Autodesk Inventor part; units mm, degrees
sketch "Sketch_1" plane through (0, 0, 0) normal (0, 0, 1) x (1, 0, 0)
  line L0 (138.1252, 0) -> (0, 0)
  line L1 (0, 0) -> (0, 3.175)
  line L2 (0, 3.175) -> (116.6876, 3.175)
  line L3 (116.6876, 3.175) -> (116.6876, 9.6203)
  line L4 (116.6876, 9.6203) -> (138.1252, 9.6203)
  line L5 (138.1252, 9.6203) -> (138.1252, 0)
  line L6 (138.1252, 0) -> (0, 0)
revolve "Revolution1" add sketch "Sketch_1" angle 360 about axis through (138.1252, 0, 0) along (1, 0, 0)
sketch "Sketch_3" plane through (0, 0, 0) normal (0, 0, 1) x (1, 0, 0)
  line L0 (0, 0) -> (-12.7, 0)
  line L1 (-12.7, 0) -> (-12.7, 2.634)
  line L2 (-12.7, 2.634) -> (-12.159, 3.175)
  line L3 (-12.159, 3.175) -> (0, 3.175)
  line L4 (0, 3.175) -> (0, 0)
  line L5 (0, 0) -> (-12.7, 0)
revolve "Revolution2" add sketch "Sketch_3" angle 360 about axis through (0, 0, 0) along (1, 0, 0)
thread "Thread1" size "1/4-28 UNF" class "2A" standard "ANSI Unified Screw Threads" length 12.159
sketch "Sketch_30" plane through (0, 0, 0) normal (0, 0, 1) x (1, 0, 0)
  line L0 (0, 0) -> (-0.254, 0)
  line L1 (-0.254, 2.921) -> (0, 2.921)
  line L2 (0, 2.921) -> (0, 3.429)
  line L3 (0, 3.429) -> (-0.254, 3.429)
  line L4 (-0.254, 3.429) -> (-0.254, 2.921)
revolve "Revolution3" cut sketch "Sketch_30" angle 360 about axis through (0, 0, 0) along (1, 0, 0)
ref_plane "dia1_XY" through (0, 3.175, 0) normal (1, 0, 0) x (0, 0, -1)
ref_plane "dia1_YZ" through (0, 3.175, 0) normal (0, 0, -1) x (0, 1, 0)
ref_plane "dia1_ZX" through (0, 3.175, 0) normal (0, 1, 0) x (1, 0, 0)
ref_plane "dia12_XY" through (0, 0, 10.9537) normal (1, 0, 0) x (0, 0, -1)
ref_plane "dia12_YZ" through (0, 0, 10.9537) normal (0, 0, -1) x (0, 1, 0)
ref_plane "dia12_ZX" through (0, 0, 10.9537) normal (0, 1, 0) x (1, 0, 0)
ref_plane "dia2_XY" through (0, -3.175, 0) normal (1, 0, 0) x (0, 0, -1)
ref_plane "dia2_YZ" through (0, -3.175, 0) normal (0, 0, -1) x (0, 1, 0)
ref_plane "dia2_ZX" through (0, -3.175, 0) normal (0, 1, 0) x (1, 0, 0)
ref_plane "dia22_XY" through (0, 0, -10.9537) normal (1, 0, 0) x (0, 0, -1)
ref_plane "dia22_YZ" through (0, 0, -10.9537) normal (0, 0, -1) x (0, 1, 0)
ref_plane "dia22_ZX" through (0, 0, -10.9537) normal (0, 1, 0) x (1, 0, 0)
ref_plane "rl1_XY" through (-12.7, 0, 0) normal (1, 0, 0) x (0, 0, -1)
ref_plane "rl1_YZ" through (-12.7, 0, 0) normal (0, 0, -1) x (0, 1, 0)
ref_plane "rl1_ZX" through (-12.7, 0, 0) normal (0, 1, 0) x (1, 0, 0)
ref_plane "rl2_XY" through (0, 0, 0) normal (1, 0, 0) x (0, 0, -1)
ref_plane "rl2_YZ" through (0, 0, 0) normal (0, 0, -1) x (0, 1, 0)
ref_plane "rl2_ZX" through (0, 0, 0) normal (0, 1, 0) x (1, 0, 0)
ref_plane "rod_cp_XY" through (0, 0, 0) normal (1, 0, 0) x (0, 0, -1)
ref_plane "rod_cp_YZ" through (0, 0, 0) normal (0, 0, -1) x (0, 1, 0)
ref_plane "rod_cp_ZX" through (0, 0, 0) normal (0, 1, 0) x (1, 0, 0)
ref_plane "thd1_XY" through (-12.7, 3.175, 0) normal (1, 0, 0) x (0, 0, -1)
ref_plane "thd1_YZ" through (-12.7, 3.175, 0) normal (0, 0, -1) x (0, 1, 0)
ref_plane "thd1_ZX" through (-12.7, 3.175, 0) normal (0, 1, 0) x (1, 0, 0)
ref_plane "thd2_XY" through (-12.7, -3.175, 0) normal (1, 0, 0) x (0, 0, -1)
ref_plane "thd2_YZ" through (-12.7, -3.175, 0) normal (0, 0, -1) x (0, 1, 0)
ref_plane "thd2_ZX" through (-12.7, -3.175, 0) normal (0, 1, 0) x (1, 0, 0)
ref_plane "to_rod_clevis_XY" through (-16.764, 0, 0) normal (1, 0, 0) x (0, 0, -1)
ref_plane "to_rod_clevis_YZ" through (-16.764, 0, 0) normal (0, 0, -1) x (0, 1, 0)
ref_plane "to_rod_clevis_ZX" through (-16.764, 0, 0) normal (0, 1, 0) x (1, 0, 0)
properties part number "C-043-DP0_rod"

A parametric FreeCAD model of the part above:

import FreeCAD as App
import Part
import Sketcher
from FreeCAD import Vector
Q = App.Units.Quantity


def add_polygon(sketch, points):
    """Adds a closed chain of lines whose ends are joined by coincident constraints."""
    first, n = sketch.GeometryCount, len(points)
    for a, b in zip(points, points[1:] + points[:1]):
        sketch.addGeometry(Part.LineSegment(App.Vector(*a, 0), App.Vector(*b, 0)), False)
    for i in range(n):
        sketch.addConstraint(Sketcher.Constraint("Coincident", first + i, 2, first + (i + 1) % n, 1))

doc = App.newDocument("Part")
params = doc.addObject("Spreadsheet::Sheet", "Params")
for row, (alias, value) in enumerate([
    ("sketch1_width", "5.438 in"),
    ("sketch1_width2", "0.844 in"),
    ("sketch1_height", "0.125 in"),
    ("revolution_angle", "360 deg"),
    ("sketch2_width", "0.5 in"),
    ("sketch2_height", "0.125 in"),
    ("revolution2_angle", "360 deg"),
    ("sketch3_width", "0.01 in"),
    ("sketch3_height", "0.02 in"),
    ("groove_angle", "360 deg"),
], start=1):
    params.set(f"A{row}", alias)
    params.set(f"B{row}", "=" + value)
    params.setAlias(f"B{row}", alias)

body = doc.addObject("PartDesign::Body", "Body")

sketch1 = body.newObject("Sketcher::SketchObject", "Sketch")
sketch1.AttachmentSupport = (doc.getObject("XY_Plane"), [""])
sketch1.MapMode = "FlatFace"
add_polygon(sketch1, [(0, 0), (138.1252, 0), (138.1252, 9.6203), (116.6876, 9.6203), (116.6876, 3.175), (0, 3.175)])
sketch1.addConstraint([
    Sketcher.Constraint("Horizontal", 0),
    Sketcher.Constraint("Vertical", 1),
    Sketcher.Constraint("Horizontal", 2),
    Sketcher.Constraint("Vertical", 3),
    Sketcher.Constraint("Horizontal", 4),
    Sketcher.Constraint("Vertical", 5),
    Sketcher.Constraint("Coincident", 5, 2, -1, 1),
    Sketcher.Constraint("DistanceX", 0, 1, 0, 2, Q("5.438 in")),
    Sketcher.Constraint("DistanceX", 2, 2, 2, 1, Q("0.844 in")),
    Sketcher.Constraint("DistanceY", 5, 2, 5, 1, Q("0.125 in")),
    Sketcher.Constraint("DistanceY", 1, 1, 1, 2, Q("9.6203 mm")),
])
sketch1.setExpression("Constraints[13]", "Params.sketch1_width")
sketch1.setExpression("Constraints[14]", "Params.sketch1_width2")
sketch1.setExpression("Constraints[15]", "Params.sketch1_height")
revolution = body.newObject("PartDesign::Revolution", "Revolution")
revolution.Profile = sketch1
revolution.ReferenceAxis = (sketch1, ["H_Axis"])
revolution.setExpression("Angle", "Params.revolution_angle")

sketch2 = body.newObject("Sketcher::SketchObject", "Sketch001")
sketch2.AttachmentSupport = (doc.getObject("XY_Plane"), [""])
sketch2.MapMode = "FlatFace"
add_polygon(sketch2, [(-12.7, 0), (0, 0), (0, 3.175), (-12.159, 3.175), (-12.7, 2.634)])
sketch2.addConstraint([
    Sketcher.Constraint("Horizontal", 0),
    Sketcher.Constraint("Vertical", 1),
    Sketcher.Constraint("Horizontal", 2),
    Sketcher.Constraint("Vertical", 4),
    Sketcher.Constraint("Coincident", 0, 2, -1, 1),
    Sketcher.Constraint("DistanceX", 0, 1, 0, 2, Q("0.5 in")),
    Sketcher.Constraint("Angle", 3, Q("-135 deg")),
    Sketcher.Constraint("DistanceY", 1, 1, 1, 2, Q("0.125 in")),
    Sketcher.Constraint("DistanceX", 2, 2, 2, 1, Q("0.4787 in")),
])
sketch2.setExpression("Constraints[10]", "Params.sketch2_width")
sketch2.setExpression("Constraints[12]", "Params.sketch2_height")
revolution2 = body.newObject("PartDesign::Revolution", "Revolution001")
revolution2.Profile = sketch2
revolution2.ReferenceAxis = (sketch2, ["H_Axis"])
revolution2.setExpression("Angle", "Params.revolution2_angle")

sketch3 = body.newObject("Sketcher::SketchObject", "Sketch002")
sketch3.AttachmentSupport = (doc.getObject("XY_Plane"), [""])
sketch3.MapMode = "FlatFace"
add_polygon(sketch3, [(-0.254, 3.429), (-0.254, 2.921), (0, 2.921), (0, 3.429)])
sketch3.addConstraint([
    Sketcher.Constraint("Vertical", 0),
    Sketcher.Constraint("Horizontal", 1),
    Sketcher.Constraint("Vertical", 2),
    Sketcher.Constraint("Horizontal", 3),
    Sketcher.Constraint("PointOnObject", 1, 2, -2),
    Sketcher.Constraint("DistanceX", 1, 1, 1, 2, Q("0.01 in")),
    Sketcher.Constraint("DistanceY", 0, 2, 0, 1, Q("0.02 in")),
    Sketcher.Constraint("DistanceY", -1, 1, 0, 2, Q("0.115 in")),
])
sketch3.setExpression("Constraints[9]", "Params.sketch3_width")
sketch3.setExpression("Constraints[10]", "Params.sketch3_height")
groove = body.newObject("PartDesign::Groove", "Groove")
groove.Profile = sketch3
groove.ReferenceAxis = (sketch3, ["H_Axis"])
groove.setExpression("Angle", "Params.groove_angle")

doc.recompute()
